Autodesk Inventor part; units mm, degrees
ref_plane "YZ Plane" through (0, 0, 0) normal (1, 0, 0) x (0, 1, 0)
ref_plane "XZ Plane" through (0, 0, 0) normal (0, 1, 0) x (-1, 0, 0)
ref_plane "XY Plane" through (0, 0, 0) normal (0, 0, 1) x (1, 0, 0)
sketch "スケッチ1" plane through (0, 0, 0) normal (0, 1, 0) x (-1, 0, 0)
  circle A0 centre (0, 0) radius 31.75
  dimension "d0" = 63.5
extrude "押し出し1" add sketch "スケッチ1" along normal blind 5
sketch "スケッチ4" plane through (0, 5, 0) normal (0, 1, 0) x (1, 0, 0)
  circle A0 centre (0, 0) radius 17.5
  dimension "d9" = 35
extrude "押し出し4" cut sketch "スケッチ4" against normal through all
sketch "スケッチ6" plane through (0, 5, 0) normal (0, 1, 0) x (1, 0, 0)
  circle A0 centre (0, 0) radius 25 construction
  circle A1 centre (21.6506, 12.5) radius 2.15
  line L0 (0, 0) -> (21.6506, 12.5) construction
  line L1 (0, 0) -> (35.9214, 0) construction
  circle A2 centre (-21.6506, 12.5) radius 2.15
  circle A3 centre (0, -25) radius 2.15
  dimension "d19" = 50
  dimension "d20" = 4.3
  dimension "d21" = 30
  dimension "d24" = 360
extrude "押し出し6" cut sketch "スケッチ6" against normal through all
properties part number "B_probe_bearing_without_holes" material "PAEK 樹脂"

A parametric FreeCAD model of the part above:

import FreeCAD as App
import Part
import Sketcher
Q = App.Units.Quantity

doc = App.newDocument("Part")
body = doc.addObject("PartDesign::Body", "Body")

sketch1 = body.newObject("Sketcher::SketchObject", "Sketch")
sketch1.AttachmentSupport = (doc.getObject("XZ_Plane"), [""])
sketch1.MapMode = "FlatFace"
sketch1.addGeometry(Part.Circle(App.Vector(0, 0, 0), App.Vector(0, 0, 1), 32), False)
sketch1.addConstraint(Sketcher.Constraint("Coincident", 0, 3, -1, 1))
sketch1.addConstraint(Sketcher.Constraint("Diameter", 0, Q("63.5 mm")))
pad1 = body.newObject("PartDesign::Pad", "Pad")
pad1.Profile = sketch1
pad1.Length = 5
pad1.Reversed = True

sketch2 = body.newObject("Sketcher::SketchObject", "Sketch001")
sketch2.AttachmentSupport = (doc.getObject("XZ_Plane"), [""])
sketch2.MapMode = "FlatFace"
sketch2.AttachmentOffset = App.Placement(App.Vector(0, 0, -5), App.Rotation())
sketch2.addGeometry(Part.Circle(App.Vector(0, 0, 0), App.Vector(0, 0, 1), 18), False)
sketch2.addConstraint(Sketcher.Constraint("Coincident", 0, 3, -1, 1))
sketch2.addConstraint(Sketcher.Constraint("Diameter", 0, Q("35 mm")))
pocket1 = body.newObject("PartDesign::Pocket", "Pocket")
pocket1.Profile = sketch2
pocket1.Type = "ThroughAll"
pocket1.Reversed = True

sketch3 = body.newObject("Sketcher::SketchObject", "Sketch002")
sketch3.AttachmentSupport = (doc.getObject("XZ_Plane"), [""])
sketch3.MapMode = "FlatFace"
sketch3.AttachmentOffset = App.Placement(App.Vector(0, 0, -5), App.Rotation())
sketch3.addGeometry(Part.Circle(App.Vector(21.7, -12.5, 0), App.Vector(0, 0, 1), 2.1), False)
sketch3.addGeometry(Part.Circle(App.Vector(-21.7, -12.5, 0), App.Vector(0, 0, 1), 2.1), False)
sketch3.addGeometry(Part.Circle(App.Vector(0, 25, 0), App.Vector(0, 0, 1), 2.1), False)
sketch3.addConstraint(Sketcher.Constraint("Equal", 0, 1))
sketch3.addConstraint(Sketcher.Constraint("Equal", 1, 2))
sketch3.addConstraint(Sketcher.Constraint("Symmetric", 0, 3, 1, 3, -2))
sketch3.addConstraint(Sketcher.Constraint("PointOnObject", 2, 3, -2))
sketch3.addConstraint(Sketcher.Constraint("Diameter", 0, Q("4.3 mm")))
sketch3.addConstraint(Sketcher.Constraint("DistanceY", -1, 1, 2, 3, Q("25 mm")))
sketch3.addConstraint(Sketcher.Constraint("DistanceY", 0, 3, -1, 1, Q("12.5 mm")))
sketch3.addConstraint(Sketcher.Constraint("DistanceX", -1, 1, 0, 3, Q("21.6506 mm")))
pocket2 = body.newObject("PartDesign::Pocket", "Pocket001")
pocket2.Profile = sketch3
pocket2.Type = "ThroughAll"
pocket2.Reversed = True

doc.recompute()
